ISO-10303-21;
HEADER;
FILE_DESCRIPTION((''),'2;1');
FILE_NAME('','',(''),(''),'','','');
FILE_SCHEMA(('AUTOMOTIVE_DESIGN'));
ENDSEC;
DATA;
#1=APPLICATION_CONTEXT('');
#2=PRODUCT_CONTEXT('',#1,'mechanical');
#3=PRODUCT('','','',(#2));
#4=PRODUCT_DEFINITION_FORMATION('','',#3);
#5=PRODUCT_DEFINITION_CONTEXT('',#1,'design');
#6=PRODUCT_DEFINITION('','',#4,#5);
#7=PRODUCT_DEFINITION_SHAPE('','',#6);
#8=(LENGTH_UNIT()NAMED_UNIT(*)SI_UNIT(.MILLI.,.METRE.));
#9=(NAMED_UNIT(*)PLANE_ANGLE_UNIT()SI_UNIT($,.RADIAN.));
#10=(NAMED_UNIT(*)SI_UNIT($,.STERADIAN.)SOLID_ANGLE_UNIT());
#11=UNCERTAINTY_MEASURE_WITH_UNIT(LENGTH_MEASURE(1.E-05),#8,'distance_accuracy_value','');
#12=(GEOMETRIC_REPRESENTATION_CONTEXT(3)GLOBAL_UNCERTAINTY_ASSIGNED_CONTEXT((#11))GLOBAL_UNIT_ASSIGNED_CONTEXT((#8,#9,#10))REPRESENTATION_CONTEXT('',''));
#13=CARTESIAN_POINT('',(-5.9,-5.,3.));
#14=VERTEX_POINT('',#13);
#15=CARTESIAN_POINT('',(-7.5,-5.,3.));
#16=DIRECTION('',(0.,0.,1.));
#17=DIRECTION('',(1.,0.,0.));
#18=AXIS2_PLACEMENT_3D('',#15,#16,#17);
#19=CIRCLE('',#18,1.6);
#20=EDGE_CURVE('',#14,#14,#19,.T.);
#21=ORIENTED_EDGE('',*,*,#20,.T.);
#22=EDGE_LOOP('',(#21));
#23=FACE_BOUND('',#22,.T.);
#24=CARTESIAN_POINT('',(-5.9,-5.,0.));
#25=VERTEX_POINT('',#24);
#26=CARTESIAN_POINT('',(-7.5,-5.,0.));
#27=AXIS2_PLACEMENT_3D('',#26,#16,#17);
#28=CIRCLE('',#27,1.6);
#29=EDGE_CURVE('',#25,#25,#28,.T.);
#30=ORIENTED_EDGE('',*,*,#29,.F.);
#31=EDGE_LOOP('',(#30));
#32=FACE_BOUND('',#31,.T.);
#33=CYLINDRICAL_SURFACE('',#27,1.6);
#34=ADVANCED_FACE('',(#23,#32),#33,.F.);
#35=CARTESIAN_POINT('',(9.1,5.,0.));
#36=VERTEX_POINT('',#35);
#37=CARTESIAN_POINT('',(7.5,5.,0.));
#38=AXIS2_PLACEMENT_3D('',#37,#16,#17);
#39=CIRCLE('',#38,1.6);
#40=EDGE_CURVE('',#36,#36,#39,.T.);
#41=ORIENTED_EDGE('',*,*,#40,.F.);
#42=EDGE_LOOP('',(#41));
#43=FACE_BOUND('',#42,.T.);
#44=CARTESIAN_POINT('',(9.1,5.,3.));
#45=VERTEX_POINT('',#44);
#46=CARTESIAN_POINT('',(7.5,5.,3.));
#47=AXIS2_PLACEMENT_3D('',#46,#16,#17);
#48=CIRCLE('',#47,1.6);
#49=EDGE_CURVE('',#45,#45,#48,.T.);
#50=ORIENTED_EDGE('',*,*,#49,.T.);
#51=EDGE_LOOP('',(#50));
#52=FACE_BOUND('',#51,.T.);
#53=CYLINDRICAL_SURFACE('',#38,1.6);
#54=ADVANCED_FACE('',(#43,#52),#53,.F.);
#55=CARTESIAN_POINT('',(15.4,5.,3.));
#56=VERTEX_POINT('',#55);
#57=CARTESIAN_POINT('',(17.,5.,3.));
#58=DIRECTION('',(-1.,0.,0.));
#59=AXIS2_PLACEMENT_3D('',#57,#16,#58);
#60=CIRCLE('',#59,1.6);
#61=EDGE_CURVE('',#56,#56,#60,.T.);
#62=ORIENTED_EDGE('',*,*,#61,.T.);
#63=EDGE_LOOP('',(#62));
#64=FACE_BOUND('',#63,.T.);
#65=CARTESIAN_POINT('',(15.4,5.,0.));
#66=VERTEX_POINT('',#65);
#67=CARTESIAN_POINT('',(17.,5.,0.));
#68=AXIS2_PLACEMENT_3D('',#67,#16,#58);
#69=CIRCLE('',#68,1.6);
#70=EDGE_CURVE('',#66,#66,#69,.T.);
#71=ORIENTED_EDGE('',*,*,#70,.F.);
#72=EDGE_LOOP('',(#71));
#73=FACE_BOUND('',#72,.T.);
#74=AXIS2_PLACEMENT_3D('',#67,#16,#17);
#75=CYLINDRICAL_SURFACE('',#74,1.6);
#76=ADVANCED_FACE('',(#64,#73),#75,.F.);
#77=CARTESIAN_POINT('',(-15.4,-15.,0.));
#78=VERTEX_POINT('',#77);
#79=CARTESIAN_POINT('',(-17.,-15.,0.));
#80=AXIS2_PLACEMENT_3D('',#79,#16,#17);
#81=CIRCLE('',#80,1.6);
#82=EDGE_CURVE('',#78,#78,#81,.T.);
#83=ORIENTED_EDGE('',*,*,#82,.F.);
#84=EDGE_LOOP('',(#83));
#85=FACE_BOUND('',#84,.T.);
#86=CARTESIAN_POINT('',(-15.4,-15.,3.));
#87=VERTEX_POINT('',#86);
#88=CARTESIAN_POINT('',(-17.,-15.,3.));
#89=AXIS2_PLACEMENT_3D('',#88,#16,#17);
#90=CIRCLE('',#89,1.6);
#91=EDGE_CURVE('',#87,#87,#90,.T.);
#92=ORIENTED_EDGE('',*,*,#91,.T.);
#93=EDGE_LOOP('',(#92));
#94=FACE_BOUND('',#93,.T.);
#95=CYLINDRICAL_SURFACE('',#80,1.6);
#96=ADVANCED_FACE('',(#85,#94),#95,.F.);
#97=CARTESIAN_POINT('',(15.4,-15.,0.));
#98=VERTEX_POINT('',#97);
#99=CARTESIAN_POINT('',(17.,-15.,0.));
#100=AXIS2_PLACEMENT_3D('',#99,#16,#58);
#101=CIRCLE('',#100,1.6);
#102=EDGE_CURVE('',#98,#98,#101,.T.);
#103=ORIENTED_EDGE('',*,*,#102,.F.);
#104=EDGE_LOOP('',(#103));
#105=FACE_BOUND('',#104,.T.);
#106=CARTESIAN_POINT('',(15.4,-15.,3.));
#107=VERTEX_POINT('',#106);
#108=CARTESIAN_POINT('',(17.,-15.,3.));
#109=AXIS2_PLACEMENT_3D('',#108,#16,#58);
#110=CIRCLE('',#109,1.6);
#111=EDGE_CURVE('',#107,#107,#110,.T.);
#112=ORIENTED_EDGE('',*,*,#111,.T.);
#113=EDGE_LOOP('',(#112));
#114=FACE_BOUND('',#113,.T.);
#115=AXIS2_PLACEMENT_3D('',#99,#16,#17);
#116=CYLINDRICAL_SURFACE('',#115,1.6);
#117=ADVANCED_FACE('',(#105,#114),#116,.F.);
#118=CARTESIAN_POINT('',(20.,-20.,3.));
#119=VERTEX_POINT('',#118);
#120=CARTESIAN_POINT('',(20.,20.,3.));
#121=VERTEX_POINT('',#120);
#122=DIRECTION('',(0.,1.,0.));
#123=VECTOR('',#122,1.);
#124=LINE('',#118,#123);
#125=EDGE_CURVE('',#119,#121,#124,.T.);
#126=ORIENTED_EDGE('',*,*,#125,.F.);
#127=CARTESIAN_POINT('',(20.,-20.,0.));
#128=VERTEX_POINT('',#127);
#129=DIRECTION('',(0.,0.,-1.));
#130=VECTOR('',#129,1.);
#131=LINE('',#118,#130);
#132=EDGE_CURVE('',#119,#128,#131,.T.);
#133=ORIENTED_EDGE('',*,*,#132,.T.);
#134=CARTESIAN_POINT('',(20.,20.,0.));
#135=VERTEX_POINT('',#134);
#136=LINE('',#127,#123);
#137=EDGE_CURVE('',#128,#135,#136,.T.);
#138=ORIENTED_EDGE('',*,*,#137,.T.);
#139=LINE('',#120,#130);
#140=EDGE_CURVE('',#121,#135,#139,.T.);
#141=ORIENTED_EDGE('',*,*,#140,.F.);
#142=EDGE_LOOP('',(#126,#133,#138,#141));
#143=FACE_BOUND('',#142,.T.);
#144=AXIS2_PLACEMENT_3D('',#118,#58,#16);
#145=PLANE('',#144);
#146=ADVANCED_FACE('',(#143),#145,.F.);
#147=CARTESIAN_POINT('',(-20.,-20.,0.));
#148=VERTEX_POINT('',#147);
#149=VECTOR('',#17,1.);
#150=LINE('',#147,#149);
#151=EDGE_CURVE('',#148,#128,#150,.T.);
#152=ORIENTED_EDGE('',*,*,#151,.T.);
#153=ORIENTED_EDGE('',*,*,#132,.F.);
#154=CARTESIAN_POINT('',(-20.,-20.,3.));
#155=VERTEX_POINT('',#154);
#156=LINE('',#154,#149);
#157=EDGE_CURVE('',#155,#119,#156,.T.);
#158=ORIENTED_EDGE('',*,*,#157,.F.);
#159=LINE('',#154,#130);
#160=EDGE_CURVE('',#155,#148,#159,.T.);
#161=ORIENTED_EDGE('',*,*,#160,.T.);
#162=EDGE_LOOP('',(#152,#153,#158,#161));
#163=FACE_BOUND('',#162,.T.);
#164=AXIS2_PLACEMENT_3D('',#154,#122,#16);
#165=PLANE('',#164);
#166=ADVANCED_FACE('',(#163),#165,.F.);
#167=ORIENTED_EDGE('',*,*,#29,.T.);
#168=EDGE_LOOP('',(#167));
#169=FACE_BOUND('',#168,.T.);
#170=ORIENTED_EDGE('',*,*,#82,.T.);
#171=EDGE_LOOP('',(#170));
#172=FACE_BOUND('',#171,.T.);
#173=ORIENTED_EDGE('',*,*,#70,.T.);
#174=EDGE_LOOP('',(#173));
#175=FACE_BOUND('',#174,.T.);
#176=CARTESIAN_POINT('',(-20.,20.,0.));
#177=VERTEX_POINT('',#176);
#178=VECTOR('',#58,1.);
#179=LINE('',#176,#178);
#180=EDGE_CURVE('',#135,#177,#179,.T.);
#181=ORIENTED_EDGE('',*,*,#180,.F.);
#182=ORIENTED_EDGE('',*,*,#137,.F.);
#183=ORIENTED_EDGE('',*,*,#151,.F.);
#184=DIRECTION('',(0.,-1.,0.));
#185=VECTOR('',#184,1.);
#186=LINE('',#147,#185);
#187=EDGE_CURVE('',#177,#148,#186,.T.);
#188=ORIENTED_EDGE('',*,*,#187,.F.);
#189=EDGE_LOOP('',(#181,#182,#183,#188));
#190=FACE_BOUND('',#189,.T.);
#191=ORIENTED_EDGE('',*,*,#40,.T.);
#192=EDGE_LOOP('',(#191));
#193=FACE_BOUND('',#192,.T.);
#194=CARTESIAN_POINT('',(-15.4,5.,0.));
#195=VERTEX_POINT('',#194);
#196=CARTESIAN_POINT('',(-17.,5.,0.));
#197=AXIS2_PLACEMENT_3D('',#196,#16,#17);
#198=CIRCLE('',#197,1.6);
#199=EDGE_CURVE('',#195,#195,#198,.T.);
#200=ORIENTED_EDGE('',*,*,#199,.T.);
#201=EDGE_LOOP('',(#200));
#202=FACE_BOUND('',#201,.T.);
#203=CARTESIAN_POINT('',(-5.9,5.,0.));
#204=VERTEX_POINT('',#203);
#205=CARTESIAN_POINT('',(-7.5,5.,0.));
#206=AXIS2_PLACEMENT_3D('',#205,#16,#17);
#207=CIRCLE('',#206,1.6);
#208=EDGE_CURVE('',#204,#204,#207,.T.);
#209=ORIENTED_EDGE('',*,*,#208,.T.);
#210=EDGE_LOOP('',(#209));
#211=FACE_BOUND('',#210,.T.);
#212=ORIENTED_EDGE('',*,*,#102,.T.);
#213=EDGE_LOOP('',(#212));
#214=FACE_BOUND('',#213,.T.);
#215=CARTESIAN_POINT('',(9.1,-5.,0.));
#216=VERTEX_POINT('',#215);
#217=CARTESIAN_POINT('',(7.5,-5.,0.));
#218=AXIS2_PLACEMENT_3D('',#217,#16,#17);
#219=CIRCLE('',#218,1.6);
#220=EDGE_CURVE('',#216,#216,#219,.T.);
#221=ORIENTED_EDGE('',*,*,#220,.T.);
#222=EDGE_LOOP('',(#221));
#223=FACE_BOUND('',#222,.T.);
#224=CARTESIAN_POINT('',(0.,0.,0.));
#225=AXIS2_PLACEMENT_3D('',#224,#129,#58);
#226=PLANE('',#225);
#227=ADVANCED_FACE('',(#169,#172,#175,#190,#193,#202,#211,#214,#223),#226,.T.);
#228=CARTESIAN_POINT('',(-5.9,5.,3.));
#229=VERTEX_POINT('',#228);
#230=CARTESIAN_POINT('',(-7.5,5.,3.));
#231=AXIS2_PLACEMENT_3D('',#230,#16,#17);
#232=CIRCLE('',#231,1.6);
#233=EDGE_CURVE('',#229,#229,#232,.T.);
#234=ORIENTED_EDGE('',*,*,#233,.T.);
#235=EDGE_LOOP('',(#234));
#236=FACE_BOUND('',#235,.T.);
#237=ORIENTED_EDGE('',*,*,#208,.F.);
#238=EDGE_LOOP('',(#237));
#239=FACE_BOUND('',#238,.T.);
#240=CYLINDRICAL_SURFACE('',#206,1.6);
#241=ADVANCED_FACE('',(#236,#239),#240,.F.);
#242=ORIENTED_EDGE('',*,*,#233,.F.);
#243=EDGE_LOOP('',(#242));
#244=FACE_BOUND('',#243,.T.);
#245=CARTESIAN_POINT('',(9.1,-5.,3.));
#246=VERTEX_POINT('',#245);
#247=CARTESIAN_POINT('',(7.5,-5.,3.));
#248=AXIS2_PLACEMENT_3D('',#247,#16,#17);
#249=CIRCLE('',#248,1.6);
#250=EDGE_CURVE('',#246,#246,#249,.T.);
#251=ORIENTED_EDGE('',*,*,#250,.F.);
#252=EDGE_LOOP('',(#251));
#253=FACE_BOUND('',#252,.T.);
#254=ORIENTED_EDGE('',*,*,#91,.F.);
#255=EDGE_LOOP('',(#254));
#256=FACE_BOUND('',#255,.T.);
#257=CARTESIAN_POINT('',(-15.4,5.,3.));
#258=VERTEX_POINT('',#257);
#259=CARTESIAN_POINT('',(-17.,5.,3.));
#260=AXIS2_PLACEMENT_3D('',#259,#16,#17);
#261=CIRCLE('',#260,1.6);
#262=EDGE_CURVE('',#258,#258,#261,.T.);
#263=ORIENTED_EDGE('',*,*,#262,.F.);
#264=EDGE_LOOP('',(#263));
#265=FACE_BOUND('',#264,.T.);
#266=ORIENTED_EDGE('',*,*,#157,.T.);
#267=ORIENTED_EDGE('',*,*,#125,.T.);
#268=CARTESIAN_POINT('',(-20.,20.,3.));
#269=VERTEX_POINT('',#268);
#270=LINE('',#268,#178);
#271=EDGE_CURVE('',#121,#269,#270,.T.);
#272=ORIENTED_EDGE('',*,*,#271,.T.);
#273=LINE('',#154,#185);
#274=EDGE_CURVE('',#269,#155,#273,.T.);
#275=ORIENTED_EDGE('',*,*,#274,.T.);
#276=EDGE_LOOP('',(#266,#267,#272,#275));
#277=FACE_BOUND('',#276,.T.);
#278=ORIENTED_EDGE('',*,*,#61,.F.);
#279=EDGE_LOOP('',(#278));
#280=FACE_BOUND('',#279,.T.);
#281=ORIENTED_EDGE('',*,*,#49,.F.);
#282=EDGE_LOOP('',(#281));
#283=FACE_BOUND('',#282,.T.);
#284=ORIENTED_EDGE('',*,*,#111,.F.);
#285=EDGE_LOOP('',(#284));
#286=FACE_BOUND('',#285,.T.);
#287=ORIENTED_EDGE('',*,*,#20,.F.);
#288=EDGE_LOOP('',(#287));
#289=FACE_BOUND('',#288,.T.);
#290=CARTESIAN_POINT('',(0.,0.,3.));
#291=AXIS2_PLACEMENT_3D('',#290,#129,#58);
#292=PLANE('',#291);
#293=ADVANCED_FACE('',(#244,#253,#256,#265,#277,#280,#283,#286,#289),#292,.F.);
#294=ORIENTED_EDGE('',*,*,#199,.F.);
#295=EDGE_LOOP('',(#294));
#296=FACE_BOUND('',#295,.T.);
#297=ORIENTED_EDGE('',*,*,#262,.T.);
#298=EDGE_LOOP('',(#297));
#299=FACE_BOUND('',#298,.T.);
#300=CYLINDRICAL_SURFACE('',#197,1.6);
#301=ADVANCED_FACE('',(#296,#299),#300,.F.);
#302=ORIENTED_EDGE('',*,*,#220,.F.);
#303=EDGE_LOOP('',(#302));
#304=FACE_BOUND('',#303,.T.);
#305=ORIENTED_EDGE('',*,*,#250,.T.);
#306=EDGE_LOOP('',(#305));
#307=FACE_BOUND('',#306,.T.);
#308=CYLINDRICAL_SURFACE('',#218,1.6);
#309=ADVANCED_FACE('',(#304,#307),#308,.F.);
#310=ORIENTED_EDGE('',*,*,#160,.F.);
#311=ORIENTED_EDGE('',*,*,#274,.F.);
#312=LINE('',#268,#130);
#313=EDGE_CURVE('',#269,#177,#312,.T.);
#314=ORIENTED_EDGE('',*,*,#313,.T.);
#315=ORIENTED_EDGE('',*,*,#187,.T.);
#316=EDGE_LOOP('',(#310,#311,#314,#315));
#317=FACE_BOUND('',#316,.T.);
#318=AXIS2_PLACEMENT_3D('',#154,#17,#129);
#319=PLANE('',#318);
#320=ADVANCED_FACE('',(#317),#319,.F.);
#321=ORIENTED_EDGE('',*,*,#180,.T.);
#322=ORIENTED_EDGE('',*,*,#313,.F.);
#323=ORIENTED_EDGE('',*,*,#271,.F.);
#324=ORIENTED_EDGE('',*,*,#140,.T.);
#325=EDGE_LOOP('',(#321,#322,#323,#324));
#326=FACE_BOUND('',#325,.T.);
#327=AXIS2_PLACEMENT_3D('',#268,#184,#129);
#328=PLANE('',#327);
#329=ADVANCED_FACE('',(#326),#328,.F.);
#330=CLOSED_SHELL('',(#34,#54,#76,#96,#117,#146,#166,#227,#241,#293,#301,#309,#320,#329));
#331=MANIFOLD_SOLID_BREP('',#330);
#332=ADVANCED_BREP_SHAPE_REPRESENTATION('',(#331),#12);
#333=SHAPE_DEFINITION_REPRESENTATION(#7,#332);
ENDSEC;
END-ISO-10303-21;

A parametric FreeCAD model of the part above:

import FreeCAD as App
import Part
import Sketcher
from FreeCAD import Vector
Q = App.Units.Quantity


def add_polygon(sketch, points):
    """Adds a closed chain of lines whose ends are joined by coincident constraints."""
    first, n = sketch.GeometryCount, len(points)
    for a, b in zip(points, points[1:] + points[:1]):
        sketch.addGeometry(Part.LineSegment(App.Vector(*a, 0), App.Vector(*b, 0)), False)
    for i in range(n):
        sketch.addConstraint(Sketcher.Constraint("Coincident", first + i, 2, first + (i + 1) % n, 1))

doc = App.newDocument("Part")
body = doc.addObject("PartDesign::Body", "Body")

sketch1 = doc.addObject("Sketcher::SketchObject", "Sketch")
body.addObject(sketch1)
sketch1.AttachmentSupport = (doc.XY_Plane, [""])
sketch1.MapMode = "FlatFace"
add_polygon(sketch1, [(-20, 20), (-20, -20), (20, -20), (20, 20)])
sketch1.addConstraint([
    Sketcher.Constraint("Vertical", 0),
    Sketcher.Constraint("Horizontal", 1),
    Sketcher.Constraint("Vertical", 2),
    Sketcher.Constraint("Horizontal", 3),
    Sketcher.Constraint("Symmetric", 0, 2, 2, 2, -1, 1),
    Sketcher.Constraint("Equal", 3, 0),
    Sketcher.Constraint("DistanceX", 1, 1, 1, 2, Q("40 mm")),
])
pad1 = doc.addObject("PartDesign::Pad", "Pad")
body.addObject(pad1)
pad1.Profile = sketch1
pad1.Length = 3

sketch2 = doc.addObject("Sketcher::SketchObject", "Sketch001")
body.addObject(sketch2)
sketch2.AttachmentSupport = (doc.XY_Plane, [""])
sketch2.MapMode = "FlatFace"
sketch2.AttachmentOffset = App.Placement(Vector(0, 0, 3), App.Rotation())
sketch2.addGeometry([
    Part.Circle(Vector(-7.5, 5, 0), Vector(0, 0, 1), 1.6),
    Part.Circle(Vector(7.5, 5, 0), Vector(0, 0, 1), 1.6),
    Part.Circle(Vector(7.5, -5, 0), Vector(0, 0, 1), 1.6),
    Part.Circle(Vector(-7.5, -5, 0), Vector(0, 0, 1), 1.6),
    Part.Circle(Vector(-17, -15, 0), Vector(0, 0, 1), 1.6),
    Part.Circle(Vector(-17, 5, 0), Vector(0, 0, 1), 1.6),
    Part.Circle(Vector(17, 5, 0), Vector(0, 0, 1), 1.6),
    Part.Circle(Vector(17, -15, 0), Vector(0, 0, 1), 1.6),
], False)
sketch2.addConstraint([
    Sketcher.Constraint("Equal", 0, 1),
    Sketcher.Constraint("Equal", 1, 2),
    Sketcher.Constraint("Equal", 2, 3),
    Sketcher.Constraint("Equal", 3, 4),
    Sketcher.Constraint("Equal", 4, 5),
    Sketcher.Constraint("Equal", 5, 6),
    Sketcher.Constraint("Equal", 6, 7),
    Sketcher.Constraint("Symmetric", 0, 3, 2, 3, -1, 1),
    Sketcher.Constraint("Symmetric", 1, 3, 3, 3, -1, 1),
    Sketcher.Constraint("Symmetric", 0, 3, 1, 3, -2),
    Sketcher.Constraint("Symmetric", 5, 3, 6, 3, -2),
    Sketcher.Constraint("Symmetric", 4, 3, 7, 3, -2),
    Sketcher.Constraint("Horizontal", 1, 3, 5, 3),
    Sketcher.Constraint("Vertical", 4, 3, 5, 3),
    Sketcher.Constraint("Diameter", 0, Q("3.2 mm")),
    Sketcher.Constraint("DistanceY", -1, 1, 0, 3, Q("5 mm")),
    Sketcher.Constraint("DistanceX", 4, 3, -1, 1, Q("17 mm")),
    Sketcher.Constraint("DistanceY", 4, 3, -1, 1, Q("15 mm")),
    Sketcher.Constraint("DistanceX", 0, 3, 1, 3, Q("15 mm")),
])
pocket1 = doc.addObject("PartDesign::Pocket", "Pocket")
body.addObject(pocket1)
pocket1.Profile = sketch2
pocket1.Type = "ThroughAll"

doc.recompute()
